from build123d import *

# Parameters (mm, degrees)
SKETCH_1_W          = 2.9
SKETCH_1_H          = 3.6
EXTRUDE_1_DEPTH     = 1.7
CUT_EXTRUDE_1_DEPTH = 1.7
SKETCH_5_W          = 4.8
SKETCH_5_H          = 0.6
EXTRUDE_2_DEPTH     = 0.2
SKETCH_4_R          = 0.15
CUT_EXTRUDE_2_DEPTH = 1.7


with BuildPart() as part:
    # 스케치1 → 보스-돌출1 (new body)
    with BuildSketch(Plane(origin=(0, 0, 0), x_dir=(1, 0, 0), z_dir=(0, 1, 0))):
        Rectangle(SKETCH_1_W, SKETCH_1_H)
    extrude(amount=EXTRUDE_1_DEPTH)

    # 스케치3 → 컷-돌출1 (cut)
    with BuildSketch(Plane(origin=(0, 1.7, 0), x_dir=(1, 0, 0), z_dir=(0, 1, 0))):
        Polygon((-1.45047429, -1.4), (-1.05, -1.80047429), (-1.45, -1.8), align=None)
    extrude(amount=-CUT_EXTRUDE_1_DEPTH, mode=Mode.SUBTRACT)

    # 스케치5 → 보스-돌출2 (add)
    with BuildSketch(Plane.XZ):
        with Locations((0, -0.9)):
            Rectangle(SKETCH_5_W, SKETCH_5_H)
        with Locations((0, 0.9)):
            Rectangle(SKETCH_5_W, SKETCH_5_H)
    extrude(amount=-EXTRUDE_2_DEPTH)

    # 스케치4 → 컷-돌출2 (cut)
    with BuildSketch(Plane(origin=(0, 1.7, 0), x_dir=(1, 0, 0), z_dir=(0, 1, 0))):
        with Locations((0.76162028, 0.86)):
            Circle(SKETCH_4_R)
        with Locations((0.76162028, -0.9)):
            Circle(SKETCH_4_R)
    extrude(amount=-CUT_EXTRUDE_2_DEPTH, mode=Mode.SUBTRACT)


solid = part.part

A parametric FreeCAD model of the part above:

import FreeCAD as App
import Part
import Sketcher
Q = App.Units.Quantity


def add_polygon(sketch, points):
    """Adds a closed chain of lines whose ends are joined by coincident constraints."""
    first, n = sketch.GeometryCount, len(points)
    for a, b in zip(points, points[1:] + points[:1]):
        sketch.addGeometry(Part.LineSegment(App.Vector(*a, 0), App.Vector(*b, 0)), False)
    for i in range(n):
        sketch.addConstraint(Sketcher.Constraint("Coincident", first + i, 2, first + (i + 1) % n, 1))

doc = App.newDocument("Part")
params = doc.addObject("Spreadsheet::Sheet", "Params")
for row, (alias, value) in enumerate([
    ("sketch1_width", "2.9 mm"),
    ("sketch1_height", "3.6 mm"),
    ("pad1_length", "1.7 mm"),
    ("sketch2_length", "0.4 mm"),
    ("pocket1_length", "1.7 mm"),
    ("sketch3_width", "4.8 mm"),
    ("sketch3_height", "0.6 mm"),
    ("pad2_length", "0.2 mm"),
    ("sketch4_diameter", "0.3 mm"),
    ("pocket2_length", "1.7 mm"),
], start=1):
    params.set(f"A{row}", alias)
    params.set(f"B{row}", "=" + value)
    params.setAlias(f"B{row}", alias)

body = doc.addObject("PartDesign::Body", "Body")

# Sketch on XZ plane
sketch1 = body.newObject("Sketcher::SketchObject", "Sketch")
sketch1.AttachmentSupport = (doc.getObject("XZ_Plane"), [""])
sketch1.MapMode = "FlatFace"
add_polygon(sketch1, [(-1.4, -1.8), (-1.4, 1.8), (1.4, 1.8), (1.4, -1.8)])  # lines 0-3
sketch1.addConstraint(Sketcher.Constraint("Vertical", 0))
sketch1.addConstraint(Sketcher.Constraint("Horizontal", 1))
sketch1.addConstraint(Sketcher.Constraint("Vertical", 2))
sketch1.addConstraint(Sketcher.Constraint("Horizontal", 3))
sketch1.addConstraint(Sketcher.Constraint("Symmetric", 0, 2, 2, 2, -1, 1))
sketch1.addConstraint(Sketcher.Constraint("DistanceX", 1, 1, 1, 2, Q("2.9 mm")))
sketch1.addConstraint(Sketcher.Constraint("DistanceY", 0, 1, 0, 2, Q("3.6 mm")))
sketch1.setExpression("Constraints[9]", "Params.sketch1_width")
sketch1.setExpression("Constraints[10]", "Params.sketch1_height")
pad1 = body.newObject("PartDesign::Pad", "Pad")
pad1.Profile = sketch1
pad1.setExpression("Length", "Params.pad1_length")
pad1.Reversed = True

# Sketch on XZ plane
sketch2 = body.newObject("Sketcher::SketchObject", "Sketch001")
sketch2.AttachmentSupport = (doc.getObject("XZ_Plane"), [""])
sketch2.MapMode = "FlatFace"
sketch2.AttachmentOffset = App.Placement(App.Vector(0, 0, -1.7), App.Rotation())
add_polygon(sketch2, [(-1.05, 1.8), (-1.45, 1.4), (-1.45, 1.8)])  # lines 0-2
sketch2.addConstraint(Sketcher.Constraint("Equal", 1, 2))
sketch2.addConstraint(Sketcher.Constraint("Angle", 0, Q("-135 deg")))
sketch2.addConstraint(Sketcher.Constraint("Distance", 1, Q("0.4 mm")))
sketch2.addConstraint(Sketcher.Constraint("DistanceY", -1, 1, 0, 2, Q("1.4 mm")))
sketch2.addConstraint(Sketcher.Constraint("DistanceX", 1, 2, -1, 1, Q("1.45 mm")))
sketch2.addConstraint(Sketcher.Constraint("Distance", 0, Q("0.566356 mm")))
sketch2.setExpression("Constraints[5]", "Params.sketch2_length")
pocket1 = body.newObject("PartDesign::Pocket", "Pocket")
pocket1.Profile = sketch2
pocket1.setExpression("Length", "Params.pocket1_length")
pocket1.Reversed = True

# Sketch on XZ plane
sketch3 = body.newObject("Sketcher::SketchObject", "Sketch002")
sketch3.AttachmentSupport = (doc.getObject("XZ_Plane"), [""])
sketch3.MapMode = "FlatFace"
add_polygon(sketch3, [(-2.4, -0.6), (-2.4, -1.2), (2.4, -1.2), (2.4, -0.6)])  # lines 0-3
add_polygon(sketch3, [(-2.4, 1.2), (-2.4, 0.6), (2.4, 0.6), (2.4, 1.2)])  # lines 4-7
sketch3.addConstraint(Sketcher.Constraint("Vertical", 0))
sketch3.addConstraint(Sketcher.Constraint("Horizontal", 1))
sketch3.addConstraint(Sketcher.Constraint("Vertical", 2))
sketch3.addConstraint(Sketcher.Constraint("Horizontal", 3))
sketch3.addConstraint(Sketcher.Constraint("Vertical", 4))
sketch3.addConstraint(Sketcher.Constraint("Horizontal", 5))
sketch3.addConstraint(Sketcher.Constraint("Vertical", 6))
sketch3.addConstraint(Sketcher.Constraint("Horizontal", 7))
sketch3.addConstraint(Sketcher.Constraint("Symmetric", 2, 2, 4, 2, -1, 1))
sketch3.addConstraint(Sketcher.Constraint("Symmetric", 0, 2, 6, 2, -1, 1))
sketch3.addConstraint(Sketcher.Constraint("Vertical", 3, 2, 4, 2))
sketch3.addConstraint(Sketcher.Constraint("DistanceX", 1, 1, 1, 2, Q("4.8 mm")))
sketch3.addConstraint(Sketcher.Constraint("DistanceY", 0, 2, 0, 1, Q("0.6 mm")))
sketch3.addConstraint(Sketcher.Constraint("DistanceY", 0, 2, -1, 1, Q("1.2 mm")))
sketch3.setExpression("Constraints[19]", "Params.sketch3_width")
sketch3.setExpression("Constraints[20]", "Params.sketch3_height")
pad2 = body.newObject("PartDesign::Pad", "Pad001")
pad2.Profile = sketch3
pad2.setExpression("Length", "Params.pad2_length")
pad2.Reversed = True

# Sketch on XZ plane
sketch4 = body.newObject("Sketcher::SketchObject", "Sketch003")
sketch4.AttachmentSupport = (doc.getObject("XZ_Plane"), [""])
sketch4.MapMode = "FlatFace"
sketch4.AttachmentOffset = App.Placement(App.Vector(0, 0, -1.7), App.Rotation())
sketch4.addGeometry(Part.Circle(App.Vector(0.76, -0.86, 0), App.Vector(0, 0, 1), 0.15), False)
sketch4.addGeometry(Part.Circle(App.Vector(0.76, 0.9, 0), App.Vector(0, 0, 1), 0.15), False)
sketch4.addConstraint(Sketcher.Constraint("Equal", 0, 1))
sketch4.addConstraint(Sketcher.Constraint("Vertical", 0, 3, 1, 3))
sketch4.addConstraint(Sketcher.Constraint("Diameter", 0, Q("0.3 mm")))
sketch4.addConstraint(Sketcher.Constraint("DistanceY", -1, 1, 1, 3, Q("0.9 mm")))
sketch4.addConstraint(Sketcher.Constraint("DistanceY", 0, 3, -1, 1, Q("0.86 mm")))
sketch4.addConstraint(Sketcher.Constraint("DistanceX", -1, 1, 0, 3, Q("0.76162 mm")))
sketch4.setExpression("Constraints[2]", "Params.sketch4_diameter")
pocket2 = body.newObject("PartDesign::Pocket", "Pocket001")
pocket2.Profile = sketch4
pocket2.setExpression("Length", "Params.pocket2_length")
pocket2.Reversed = True

doc.recompute()
